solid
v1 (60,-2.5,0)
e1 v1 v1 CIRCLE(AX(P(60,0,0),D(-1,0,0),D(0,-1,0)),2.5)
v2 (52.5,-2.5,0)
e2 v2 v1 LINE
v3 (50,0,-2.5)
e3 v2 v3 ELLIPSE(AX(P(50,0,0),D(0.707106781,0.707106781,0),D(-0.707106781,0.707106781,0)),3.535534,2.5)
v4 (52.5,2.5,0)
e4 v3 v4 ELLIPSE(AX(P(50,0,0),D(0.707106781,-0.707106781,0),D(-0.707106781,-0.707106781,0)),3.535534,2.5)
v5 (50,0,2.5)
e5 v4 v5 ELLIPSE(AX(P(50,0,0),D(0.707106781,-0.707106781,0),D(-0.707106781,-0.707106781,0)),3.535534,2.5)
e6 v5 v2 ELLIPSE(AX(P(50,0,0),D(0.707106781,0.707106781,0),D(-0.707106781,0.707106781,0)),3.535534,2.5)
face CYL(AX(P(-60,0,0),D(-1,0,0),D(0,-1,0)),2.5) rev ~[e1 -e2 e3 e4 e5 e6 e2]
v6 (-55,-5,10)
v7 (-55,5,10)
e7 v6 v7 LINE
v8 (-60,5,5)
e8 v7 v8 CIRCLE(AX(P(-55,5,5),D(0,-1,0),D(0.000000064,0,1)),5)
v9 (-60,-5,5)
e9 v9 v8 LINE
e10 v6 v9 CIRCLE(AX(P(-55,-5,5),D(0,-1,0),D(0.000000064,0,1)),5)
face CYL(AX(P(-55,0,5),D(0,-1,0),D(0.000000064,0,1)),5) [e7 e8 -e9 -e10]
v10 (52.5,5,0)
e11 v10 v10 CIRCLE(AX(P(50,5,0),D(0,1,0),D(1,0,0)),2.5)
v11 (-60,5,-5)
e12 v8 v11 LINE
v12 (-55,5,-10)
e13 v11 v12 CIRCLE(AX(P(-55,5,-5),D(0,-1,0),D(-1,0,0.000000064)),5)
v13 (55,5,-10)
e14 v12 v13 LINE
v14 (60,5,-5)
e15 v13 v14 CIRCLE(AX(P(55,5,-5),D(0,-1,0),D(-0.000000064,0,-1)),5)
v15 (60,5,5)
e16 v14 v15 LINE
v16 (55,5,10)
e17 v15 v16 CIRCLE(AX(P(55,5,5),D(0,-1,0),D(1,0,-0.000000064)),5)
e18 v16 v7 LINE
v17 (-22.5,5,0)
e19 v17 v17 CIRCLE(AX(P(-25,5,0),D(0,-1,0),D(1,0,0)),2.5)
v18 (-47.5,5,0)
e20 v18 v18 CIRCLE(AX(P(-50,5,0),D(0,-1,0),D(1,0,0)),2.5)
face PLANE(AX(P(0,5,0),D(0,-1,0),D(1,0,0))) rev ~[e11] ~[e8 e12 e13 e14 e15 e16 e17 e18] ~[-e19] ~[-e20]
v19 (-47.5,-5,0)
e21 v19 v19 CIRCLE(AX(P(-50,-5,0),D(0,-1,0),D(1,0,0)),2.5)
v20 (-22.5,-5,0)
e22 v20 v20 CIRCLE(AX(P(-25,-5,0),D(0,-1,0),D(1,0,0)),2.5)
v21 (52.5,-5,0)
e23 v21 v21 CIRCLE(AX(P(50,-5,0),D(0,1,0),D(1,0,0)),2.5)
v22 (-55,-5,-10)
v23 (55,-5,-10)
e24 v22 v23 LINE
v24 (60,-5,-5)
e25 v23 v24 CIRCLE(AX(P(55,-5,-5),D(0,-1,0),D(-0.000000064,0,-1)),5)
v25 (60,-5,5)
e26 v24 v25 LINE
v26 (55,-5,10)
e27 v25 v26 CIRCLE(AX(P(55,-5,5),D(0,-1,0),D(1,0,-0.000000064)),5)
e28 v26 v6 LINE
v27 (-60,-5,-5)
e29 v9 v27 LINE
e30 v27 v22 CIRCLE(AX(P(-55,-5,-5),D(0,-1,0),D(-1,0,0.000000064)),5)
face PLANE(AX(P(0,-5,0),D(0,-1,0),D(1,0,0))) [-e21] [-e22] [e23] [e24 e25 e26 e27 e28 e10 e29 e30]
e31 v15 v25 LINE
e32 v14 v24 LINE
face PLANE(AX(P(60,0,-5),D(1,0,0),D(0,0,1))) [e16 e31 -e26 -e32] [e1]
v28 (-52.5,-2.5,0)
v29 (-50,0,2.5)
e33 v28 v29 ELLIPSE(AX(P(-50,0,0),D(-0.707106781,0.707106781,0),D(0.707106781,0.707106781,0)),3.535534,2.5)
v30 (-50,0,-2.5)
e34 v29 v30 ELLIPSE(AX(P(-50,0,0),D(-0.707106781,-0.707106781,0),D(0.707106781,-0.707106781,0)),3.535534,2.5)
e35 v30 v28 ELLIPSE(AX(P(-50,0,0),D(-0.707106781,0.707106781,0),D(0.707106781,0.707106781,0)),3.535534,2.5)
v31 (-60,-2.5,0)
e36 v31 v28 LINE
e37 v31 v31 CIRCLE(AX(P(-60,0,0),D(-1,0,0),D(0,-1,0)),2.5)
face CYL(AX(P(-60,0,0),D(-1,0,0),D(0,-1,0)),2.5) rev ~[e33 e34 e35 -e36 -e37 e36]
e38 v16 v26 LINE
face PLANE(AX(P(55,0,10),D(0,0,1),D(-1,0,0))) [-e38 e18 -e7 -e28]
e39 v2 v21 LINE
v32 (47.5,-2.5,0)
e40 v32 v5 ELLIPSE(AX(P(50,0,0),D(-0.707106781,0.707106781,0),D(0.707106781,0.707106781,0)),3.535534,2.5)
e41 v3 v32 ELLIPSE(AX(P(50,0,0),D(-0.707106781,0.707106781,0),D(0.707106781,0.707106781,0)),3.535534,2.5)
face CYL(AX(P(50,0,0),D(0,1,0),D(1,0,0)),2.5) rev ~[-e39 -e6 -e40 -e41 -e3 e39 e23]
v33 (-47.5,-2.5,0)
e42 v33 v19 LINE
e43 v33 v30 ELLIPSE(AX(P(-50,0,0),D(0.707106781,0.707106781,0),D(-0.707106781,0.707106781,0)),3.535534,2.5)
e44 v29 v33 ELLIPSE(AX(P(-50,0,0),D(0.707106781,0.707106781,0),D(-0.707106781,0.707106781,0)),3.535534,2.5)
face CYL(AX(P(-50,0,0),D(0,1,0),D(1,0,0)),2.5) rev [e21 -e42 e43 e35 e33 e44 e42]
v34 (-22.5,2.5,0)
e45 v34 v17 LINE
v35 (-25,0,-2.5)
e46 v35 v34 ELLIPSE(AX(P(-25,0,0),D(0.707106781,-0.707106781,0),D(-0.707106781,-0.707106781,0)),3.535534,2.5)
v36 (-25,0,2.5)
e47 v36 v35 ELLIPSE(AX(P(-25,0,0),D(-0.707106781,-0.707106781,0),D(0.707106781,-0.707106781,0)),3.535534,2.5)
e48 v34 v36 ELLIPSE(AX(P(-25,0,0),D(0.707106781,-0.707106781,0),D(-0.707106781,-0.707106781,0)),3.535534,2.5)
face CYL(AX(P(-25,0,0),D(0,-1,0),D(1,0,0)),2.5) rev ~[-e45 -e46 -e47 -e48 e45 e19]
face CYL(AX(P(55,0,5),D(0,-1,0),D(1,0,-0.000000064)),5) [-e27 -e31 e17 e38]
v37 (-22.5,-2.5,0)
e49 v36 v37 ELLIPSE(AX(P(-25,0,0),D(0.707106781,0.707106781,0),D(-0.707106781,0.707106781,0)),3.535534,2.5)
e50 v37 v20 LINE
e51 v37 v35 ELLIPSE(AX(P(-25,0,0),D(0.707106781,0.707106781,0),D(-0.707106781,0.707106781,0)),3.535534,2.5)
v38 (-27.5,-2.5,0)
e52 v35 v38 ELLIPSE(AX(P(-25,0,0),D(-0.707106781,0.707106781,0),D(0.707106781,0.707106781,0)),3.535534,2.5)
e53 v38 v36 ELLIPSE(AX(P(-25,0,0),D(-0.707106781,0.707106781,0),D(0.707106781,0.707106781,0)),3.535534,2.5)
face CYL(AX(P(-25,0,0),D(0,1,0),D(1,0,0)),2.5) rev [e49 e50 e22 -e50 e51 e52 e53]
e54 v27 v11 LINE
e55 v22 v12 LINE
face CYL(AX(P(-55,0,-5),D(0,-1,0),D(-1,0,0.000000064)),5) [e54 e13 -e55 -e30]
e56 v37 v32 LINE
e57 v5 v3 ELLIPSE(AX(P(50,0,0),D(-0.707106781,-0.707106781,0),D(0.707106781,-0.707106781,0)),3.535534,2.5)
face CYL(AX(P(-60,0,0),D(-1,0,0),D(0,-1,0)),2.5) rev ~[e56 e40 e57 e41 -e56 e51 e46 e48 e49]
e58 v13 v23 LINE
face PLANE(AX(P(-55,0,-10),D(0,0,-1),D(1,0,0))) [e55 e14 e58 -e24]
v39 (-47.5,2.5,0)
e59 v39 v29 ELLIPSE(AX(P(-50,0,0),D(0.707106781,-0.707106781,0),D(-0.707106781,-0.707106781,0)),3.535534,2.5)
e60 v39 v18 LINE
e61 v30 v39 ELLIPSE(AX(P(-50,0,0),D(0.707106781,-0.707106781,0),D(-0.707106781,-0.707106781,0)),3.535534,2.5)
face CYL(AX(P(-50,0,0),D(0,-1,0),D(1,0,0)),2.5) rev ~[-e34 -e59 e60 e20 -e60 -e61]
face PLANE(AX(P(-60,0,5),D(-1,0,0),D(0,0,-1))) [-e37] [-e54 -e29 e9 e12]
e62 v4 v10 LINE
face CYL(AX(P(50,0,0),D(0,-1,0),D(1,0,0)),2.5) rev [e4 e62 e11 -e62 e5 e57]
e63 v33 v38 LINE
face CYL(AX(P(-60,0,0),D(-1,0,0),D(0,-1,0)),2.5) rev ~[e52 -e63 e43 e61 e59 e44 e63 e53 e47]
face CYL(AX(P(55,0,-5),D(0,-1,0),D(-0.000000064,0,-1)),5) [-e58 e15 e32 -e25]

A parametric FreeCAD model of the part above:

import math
import FreeCAD as App
import Part
import Sketcher
Q = App.Units.Quantity

doc = App.newDocument("Part")
body = doc.addObject("PartDesign::Body", "Body")

# Sketch on XZ plane
sketch1 = doc.addObject("Sketcher::SketchObject", "Sketch")
body.addObject(sketch1)
sketch1.AttachmentSupport = (doc.XZ_Plane, [""])
sketch1.MapMode = "FlatFace"
sketch1.addGeometry(Part.LineSegment(App.Vector(-55, -10, 0), App.Vector(55, -10, 0)), False)
sketch1.addGeometry(Part.ArcOfCircle(Part.Circle(App.Vector(55, -5, 0), App.Vector(0, 0, 1), 5), math.radians(-90), math.radians(0)), False)
sketch1.addGeometry(Part.LineSegment(App.Vector(60, -5, 0), App.Vector(60, 5, 0)), False)
sketch1.addGeometry(Part.ArcOfCircle(Part.Circle(App.Vector(55, 5, 0), App.Vector(0, 0, 1), 5), math.radians(0), math.radians(90)), False)
sketch1.addGeometry(Part.LineSegment(App.Vector(55, 10, 0), App.Vector(-55, 10, 0)), False)
sketch1.addGeometry(Part.ArcOfCircle(Part.Circle(App.Vector(-55, 5, 0), App.Vector(0, 0, 1), 5), math.radians(90), math.radians(180)), False)
sketch1.addGeometry(Part.LineSegment(App.Vector(-60, 5, 0), App.Vector(-60, -5, 0)), False)
sketch1.addGeometry(Part.ArcOfCircle(Part.Circle(App.Vector(-55, -5, 0), App.Vector(0, 0, 1), 5), math.radians(180), math.radians(270)), False)
sketch1.addGeometry(Part.Circle(App.Vector(-50, 0, 0), App.Vector(0, 0, 1), 2.5), False)
sketch1.addGeometry(Part.Circle(App.Vector(-25, 0, 0), App.Vector(0, 0, 1), 2.5), False)
sketch1.addGeometry(Part.Circle(App.Vector(50, 0, 0), App.Vector(0, 0, 1), 2.5), False)
sketch1.addConstraint(Sketcher.Constraint("Tangent", 0, 2, 1, 1))
sketch1.addConstraint(Sketcher.Constraint("Tangent", 1, 2, 2, 1))
sketch1.addConstraint(Sketcher.Constraint("Tangent", 2, 2, 3, 1))
sketch1.addConstraint(Sketcher.Constraint("Tangent", 3, 2, 4, 1))
sketch1.addConstraint(Sketcher.Constraint("Tangent", 4, 2, 5, 1))
sketch1.addConstraint(Sketcher.Constraint("Tangent", 5, 2, 6, 1))
sketch1.addConstraint(Sketcher.Constraint("Tangent", 6, 2, 7, 1))
sketch1.addConstraint(Sketcher.Constraint("Tangent", 7, 2, 0, 1))
sketch1.addConstraint(Sketcher.Constraint("Horizontal", 0))
sketch1.addConstraint(Sketcher.Constraint("Vertical", 2))
sketch1.addConstraint(Sketcher.Constraint("Horizontal", 4))
sketch1.addConstraint(Sketcher.Constraint("Vertical", 6))
sketch1.addConstraint(Sketcher.Constraint("Equal", 1, 3))
sketch1.addConstraint(Sketcher.Constraint("Equal", 3, 5))
sketch1.addConstraint(Sketcher.Constraint("Equal", 5, 7))
sketch1.addConstraint(Sketcher.Constraint("Equal", 8, 9))
sketch1.addConstraint(Sketcher.Constraint("Equal", 9, 10))
sketch1.addConstraint(Sketcher.Constraint("Symmetric", 1, 3, 5, 3, -1, 1))
sketch1.addConstraint(Sketcher.Constraint("Symmetric", 8, 3, 10, 3, -1, 1))
sketch1.addConstraint(Sketcher.Constraint("PointOnObject", 8, 3, -1))
sketch1.addConstraint(Sketcher.Constraint("PointOnObject", 9, 3, -1))
sketch1.addConstraint(Sketcher.Constraint("Diameter", 8, Q("5 mm")))
sketch1.addConstraint(Sketcher.Constraint("Radius", 1, Q("5 mm")))
sketch1.addConstraint(Sketcher.Constraint("DistanceX", 0, 1, 0, 2, Q("110 mm")))
sketch1.addConstraint(Sketcher.Constraint("DistanceY", 2, 1, 2, 2, Q("10 mm")))
sketch1.addConstraint(Sketcher.Constraint("DistanceX", 8, 3, -1, 1, Q("50 mm")))
sketch1.addConstraint(Sketcher.Constraint("DistanceX", 9, 3, -1, 1, Q("25 mm")))
pad1 = doc.addObject("PartDesign::Pad", "Pad")
body.addObject(pad1)
pad1.Profile = sketch1
pad1.Length = 10
pad1.Midplane = True

# Sketch on YZ plane
sketch2 = doc.addObject("Sketcher::SketchObject", "Sketch001")
body.addObject(sketch2)
sketch2.AttachmentSupport = (doc.YZ_Plane, [""])
sketch2.MapMode = "FlatFace"
sketch2.AttachmentOffset = App.Placement(App.Vector(0, 0, -60), App.Rotation())
sketch2.addGeometry(Part.Circle(App.Vector(0, 0, 0), App.Vector(0, 0, 1), 2.5), False)
sketch2.addConstraint(Sketcher.Constraint("Coincident", 0, 3, -1, 1))
sketch2.addConstraint(Sketcher.Constraint("Diameter", 0, Q("5 mm")))
pocket1 = doc.addObject("PartDesign::Pocket", "Pocket")
body.addObject(pocket1)
pocket1.Profile = sketch2
pocket1.Length = 120
pocket1.Reversed = True

doc.recompute()
